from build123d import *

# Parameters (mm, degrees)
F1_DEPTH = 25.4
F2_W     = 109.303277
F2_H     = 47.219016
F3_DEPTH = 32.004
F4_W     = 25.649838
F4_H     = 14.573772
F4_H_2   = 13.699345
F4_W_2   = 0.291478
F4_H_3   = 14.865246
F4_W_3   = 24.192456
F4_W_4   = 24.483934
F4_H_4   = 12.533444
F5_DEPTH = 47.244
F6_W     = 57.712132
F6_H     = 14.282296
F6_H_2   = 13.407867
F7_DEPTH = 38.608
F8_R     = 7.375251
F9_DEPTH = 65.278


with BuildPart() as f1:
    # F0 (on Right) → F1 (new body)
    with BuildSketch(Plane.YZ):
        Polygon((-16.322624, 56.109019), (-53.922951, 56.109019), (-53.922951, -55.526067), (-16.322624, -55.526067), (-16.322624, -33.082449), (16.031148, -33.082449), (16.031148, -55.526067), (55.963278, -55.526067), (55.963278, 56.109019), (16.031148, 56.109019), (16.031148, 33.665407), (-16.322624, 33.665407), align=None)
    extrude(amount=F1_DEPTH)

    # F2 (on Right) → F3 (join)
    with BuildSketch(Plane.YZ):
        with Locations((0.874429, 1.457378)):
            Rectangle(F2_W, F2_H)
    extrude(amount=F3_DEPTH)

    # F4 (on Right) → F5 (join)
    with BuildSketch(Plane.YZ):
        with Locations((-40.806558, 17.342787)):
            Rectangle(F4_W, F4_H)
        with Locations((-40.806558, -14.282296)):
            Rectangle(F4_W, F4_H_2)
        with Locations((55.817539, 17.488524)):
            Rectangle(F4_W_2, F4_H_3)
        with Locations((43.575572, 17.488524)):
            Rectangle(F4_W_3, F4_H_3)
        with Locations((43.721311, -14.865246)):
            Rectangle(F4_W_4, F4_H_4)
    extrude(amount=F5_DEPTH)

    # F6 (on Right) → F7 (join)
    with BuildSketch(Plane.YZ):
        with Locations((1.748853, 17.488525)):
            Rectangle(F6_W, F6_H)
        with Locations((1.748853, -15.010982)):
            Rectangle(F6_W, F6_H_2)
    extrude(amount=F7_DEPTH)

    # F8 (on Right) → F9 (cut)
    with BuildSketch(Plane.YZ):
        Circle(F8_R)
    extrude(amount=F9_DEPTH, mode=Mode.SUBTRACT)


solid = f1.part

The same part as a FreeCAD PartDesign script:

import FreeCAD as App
import Part
import Sketcher

doc = App.newDocument("Part")
params = doc.addObject("Spreadsheet::Sheet", "Params")
for row, (alias, value) in enumerate([
    ("pad1_length", "1 in"),
    ("pad2_length", "1.26 in"),
    ("pad3_length", "1.86 in"),
    ("pad4_length", "1.52 in"),
    ("pocket1_length", "2.57 in"),
], start=1):
    params.set(f"A{row}", alias)
    params.set(f"B{row}", "=" + value)
    params.setAlias(f"B{row}", alias)

body = doc.addObject("PartDesign::Body", "Body")

# Sketch on YZ plane
sketch1 = body.newObject("Sketcher::SketchObject", "Sketch")
sketch1.AttachmentSupport = (doc.getObject("YZ_Plane"), [""])
sketch1.MapMode = "FlatFace"
sketch1.addGeometry([
    Part.LineSegment(App.Vector(-16.322624, 56.109019, 0), App.Vector(-53.922951, 56.109019, 0)),  # 0
    Part.LineSegment(App.Vector(-53.922951, 56.109019, 0), App.Vector(-53.922951, -55.526067, 0)),  # 1
    Part.LineSegment(App.Vector(-53.922951, -55.526067, 0), App.Vector(-16.322624, -55.526067, 0)),  # 2
    Part.LineSegment(App.Vector(-16.322624, -55.526067, 0), App.Vector(-16.322624, -33.082449, 0)),  # 3
    Part.LineSegment(App.Vector(-16.322624, -33.082449, 0), App.Vector(16.031148, -33.082449, 0)),  # 4
    Part.LineSegment(App.Vector(16.031148, -33.082449, 0), App.Vector(16.031148, -55.526067, 0)),  # 5
    Part.LineSegment(App.Vector(16.031148, -55.526067, 0), App.Vector(55.963278, -55.526067, 0)),  # 6
    Part.LineSegment(App.Vector(55.963278, -55.526067, 0), App.Vector(55.963278, 56.109019, 0)),  # 7
    Part.LineSegment(App.Vector(55.963278, 56.109019, 0), App.Vector(16.031148, 56.109019, 0)),  # 8
    Part.LineSegment(App.Vector(16.031148, 56.109019, 0), App.Vector(16.031148, 33.665407, 0)),  # 9
    Part.LineSegment(App.Vector(16.031148, 33.665407, 0), App.Vector(-16.322624, 33.665407, 0)),  # 10
    Part.LineSegment(App.Vector(-16.322624, 33.665407, 0), App.Vector(-16.322624, 56.109019, 0)),  # 11
], False)
sketch1.addConstraint([
    Sketcher.Constraint("Coincident", 0, 2, 1, 1),
    Sketcher.Constraint("Coincident", 1, 2, 2, 1),
    Sketcher.Constraint("Coincident", 2, 2, 3, 1),
    Sketcher.Constraint("Coincident", 3, 2, 4, 1),
    Sketcher.Constraint("Coincident", 4, 2, 5, 1),
    Sketcher.Constraint("Coincident", 5, 2, 6, 1),
    Sketcher.Constraint("Coincident", 6, 2, 7, 1),
    Sketcher.Constraint("Coincident", 7, 2, 8, 1),
    Sketcher.Constraint("Coincident", 8, 2, 9, 1),
    Sketcher.Constraint("Coincident", 9, 2, 10, 1),
    Sketcher.Constraint("Coincident", 10, 2, 11, 1),
    Sketcher.Constraint("Coincident", 11, 2, 0, 1),
    Sketcher.Constraint("Horizontal", 0),
    Sketcher.Constraint("Vertical", 1),
    Sketcher.Constraint("Horizontal", 2),
    Sketcher.Constraint("Vertical", 3),
    Sketcher.Constraint("Horizontal", 4),
    Sketcher.Constraint("Vertical", 5),
    Sketcher.Constraint("Horizontal", 6),
    Sketcher.Constraint("Vertical", 7),
    Sketcher.Constraint("Horizontal", 8),
    Sketcher.Constraint("Vertical", 9),
    Sketcher.Constraint("Horizontal", 10),
    Sketcher.Constraint("Vertical", 11),
    Sketcher.Constraint("Horizontal", 2, 2, 5, 2),
    Sketcher.Constraint("Horizontal", 0, 2, 7, 2),
    Sketcher.Constraint("Vertical", 5, 2, 8, 2),
    Sketcher.Constraint("Vertical", 3, 2, 10, 2),
    Sketcher.Constraint("DistanceX", 6, 1, 6, 2, 39.93213),
    Sketcher.Constraint("DistanceY", 3, 1, 3, 2, 22.443618),
    Sketcher.Constraint("DistanceX", 1, 2, 4, 2, 69.954099),
    Sketcher.Constraint("DistanceX", 0, 2, 0, 1, 37.600327),
    Sketcher.Constraint("DistanceY", 1, 2, 1, 1, 111.635086),
    Sketcher.Constraint("DistanceY", 9, 2, 9, 1, 22.443612),
    Sketcher.Constraint("DistanceX", 0, 2, -1, 1, 53.922951),
    Sketcher.Constraint("DistanceY", -1, 1, 0, 2, 56.109019),
])
pad1 = body.newObject("PartDesign::Pad", "Pad")
pad1.Profile = sketch1
pad1.setExpression("Length", "Params.pad1_length")

# Sketch on YZ plane
sketch2 = body.newObject("Sketcher::SketchObject", "Sketch001")
sketch2.AttachmentSupport = (doc.getObject("YZ_Plane"), [""])
sketch2.MapMode = "FlatFace"
sketch2.addGeometry([
    Part.LineSegment(App.Vector(-53.777209, 25.066886, 0), App.Vector(-53.777209, -22.15213, 0)),
    Part.LineSegment(App.Vector(-53.777209, -22.15213, 0), App.Vector(55.526068, -22.15213, 0)),
    Part.LineSegment(App.Vector(55.526068, -22.15213, 0), App.Vector(55.526068, 25.066886, 0)),
    Part.LineSegment(App.Vector(55.526068, 25.066886, 0), App.Vector(-53.777209, 25.066886, 0)),
], False)
sketch2.addConstraint([
    Sketcher.Constraint("Coincident", 0, 2, 1, 1),
    Sketcher.Constraint("Coincident", 1, 2, 2, 1),
    Sketcher.Constraint("Coincident", 2, 2, 3, 1),
    Sketcher.Constraint("Coincident", 3, 2, 0, 1),
    Sketcher.Constraint("Vertical", 0),
    Sketcher.Constraint("Horizontal", 1),
    Sketcher.Constraint("Vertical", 2),
    Sketcher.Constraint("Horizontal", 3),
    Sketcher.Constraint("DistanceX", 1, 1, 1, 2, 109.303277),
    Sketcher.Constraint("DistanceY", 0, 2, 0, 1, 47.219016),
    Sketcher.Constraint("DistanceX", 0, 2, -1, 1, 53.777209),
    Sketcher.Constraint("DistanceY", 0, 2, -1, 1, 22.15213),
])
pad2 = body.newObject("PartDesign::Pad", "Pad001")
pad2.Profile = sketch2
pad2.setExpression("Length", "Params.pad2_length")

# Sketch on YZ plane
sketch3 = body.newObject("Sketcher::SketchObject", "Sketch002")
sketch3.AttachmentSupport = (doc.getObject("YZ_Plane"), [""])
sketch3.MapMode = "FlatFace"
sketch3.addGeometry([
    Part.LineSegment(App.Vector(-53.631477, 24.629673, 0), App.Vector(-53.631477, 10.055901, 0)),  # 0
    Part.LineSegment(App.Vector(-53.631477, 10.055901, 0), App.Vector(-27.981639, 10.055901, 0)),  # 1
    Part.LineSegment(App.Vector(-27.981639, 10.055901, 0), App.Vector(-27.981639, 24.629673, 0)),  # 2
    Part.LineSegment(App.Vector(-27.981639, 24.629673, 0), App.Vector(-53.631477, 24.629673, 0)),  # 3
    Part.LineSegment(App.Vector(-53.631477, -7.432624, 0), App.Vector(-53.631477, -21.131968, 0)),  # 4
    Part.LineSegment(App.Vector(-53.631477, -21.131968, 0), App.Vector(-27.981639, -21.131968, 0)),  # 5
    Part.LineSegment(App.Vector(-27.981639, -21.131968, 0), App.Vector(-27.981639, -7.432624, 0)),  # 6
    Part.LineSegment(App.Vector(-27.981639, -7.432624, 0), App.Vector(-53.631477, -7.432624, 0)),  # 7
    Part.LineSegment(App.Vector(55.963278, 10.055901, 0), App.Vector(55.963278, 24.921147, 0)),  # 8
    Part.LineSegment(App.Vector(55.963278, 24.921147, 0), App.Vector(31.479344, 24.921147, 0)),  # 9
    Part.LineSegment(App.Vector(31.479344, 24.921147, 0), App.Vector(31.479344, 10.055901, 0)),  # 10
    Part.LineSegment(App.Vector(31.479344, 10.055901, 0), App.Vector(55.963278, 10.055901, 0)),  # 11
    Part.LineSegment(App.Vector(31.479344, -8.598524, 0), App.Vector(31.479344, -21.131968, 0)),  # 12
    Part.LineSegment(App.Vector(31.479344, -21.131968, 0), App.Vector(55.963278, -21.131968, 0)),  # 13
    Part.LineSegment(App.Vector(55.963278, -21.131968, 0), App.Vector(55.963278, -8.598524, 0)),  # 14
    Part.LineSegment(App.Vector(55.963278, -8.598524, 0), App.Vector(31.479344, -8.598524, 0)),  # 15
], False)
sketch3.addConstraint([
    Sketcher.Constraint("Coincident", 0, 2, 1, 1),
    Sketcher.Constraint("Coincident", 1, 2, 2, 1),
    Sketcher.Constraint("Coincident", 2, 2, 3, 1),
    Sketcher.Constraint("Coincident", 3, 2, 0, 1),
    Sketcher.Constraint("Coincident", 4, 2, 5, 1),
    Sketcher.Constraint("Coincident", 5, 2, 6, 1),
    Sketcher.Constraint("Coincident", 6, 2, 7, 1),
    Sketcher.Constraint("Coincident", 7, 2, 4, 1),
    Sketcher.Constraint("Coincident", 8, 2, 9, 1),
    Sketcher.Constraint("Coincident", 9, 2, 10, 1),
    Sketcher.Constraint("Coincident", 10, 2, 11, 1),
    Sketcher.Constraint("Coincident", 11, 2, 8, 1),
    Sketcher.Constraint("Coincident", 12, 2, 13, 1),
    Sketcher.Constraint("Coincident", 13, 2, 14, 1),
    Sketcher.Constraint("Coincident", 14, 2, 15, 1),
    Sketcher.Constraint("Coincident", 15, 2, 12, 1),
    Sketcher.Constraint("Vertical", 0),
    Sketcher.Constraint("Horizontal", 1),
    Sketcher.Constraint("Vertical", 2),
    Sketcher.Constraint("Horizontal", 3),
    Sketcher.Constraint("Vertical", 4),
    Sketcher.Constraint("Horizontal", 5),
    Sketcher.Constraint("Vertical", 6),
    Sketcher.Constraint("Horizontal", 7),
    Sketcher.Constraint("Vertical", 8),
    Sketcher.Constraint("Horizontal", 9),
    Sketcher.Constraint("Vertical", 10),
    Sketcher.Constraint("Horizontal", 11),
    Sketcher.Constraint("Vertical", 12),
    Sketcher.Constraint("Horizontal", 13),
    Sketcher.Constraint("Vertical", 14),
    Sketcher.Constraint("Horizontal", 15),
    Sketcher.Constraint("Horizontal", 1, 2, 10, 2),
    Sketcher.Constraint("Horizontal", 5, 2, 12, 2),
    Sketcher.Constraint("Vertical", 3, 2, 4, 2),
    Sketcher.Constraint("Vertical", 2, 2, 5, 2),
    Sketcher.Constraint("Vertical", 10, 2, 12, 2),
    Sketcher.Constraint("Vertical", 11, 2, 13, 2),
    Sketcher.Constraint("DistanceY", -1, 1, 0, 2, 10.055901),
    Sketcher.Constraint("DistanceX", 1, 1, 1, 2, 25.649838),
    Sketcher.Constraint("DistanceX", 9, 2, 9, 1, 24.483934),
    Sketcher.Constraint("DistanceY", 0, 2, 0, 1, 14.573772),
    Sketcher.Constraint("DistanceY", 4, 2, 4, 1, 13.699345),
    Sketcher.Constraint("DistanceY", 8, 1, 8, 2, 14.865246),
    Sketcher.Constraint("DistanceY", 12, 2, 12, 1, 12.533444),
    Sketcher.Constraint("DistanceX", 1, 2, -1, 1, 27.981639),
    Sketcher.Constraint("DistanceY", 4, 2, -1, 1, 21.131968),
    Sketcher.Constraint("DistanceX", -1, 1, 8, 2, 55.963278),
])
pad3 = body.newObject("PartDesign::Pad", "Pad002")
pad3.Profile = sketch3
pad3.setExpression("Length", "Params.pad3_length")

# Sketch on YZ plane
sketch4 = body.newObject("Sketcher::SketchObject", "Sketch003")
sketch4.AttachmentSupport = (doc.getObject("YZ_Plane"), [""])
sketch4.MapMode = "FlatFace"
sketch4.addGeometry([
    Part.LineSegment(App.Vector(-27.107213, 24.629673, 0), App.Vector(-27.107213, 10.347377, 0)),  # 0
    Part.LineSegment(App.Vector(-27.107213, 10.347377, 0), App.Vector(30.604919, 10.347377, 0)),  # 1
    Part.LineSegment(App.Vector(30.604919, 10.347377, 0), App.Vector(30.604919, 24.629673, 0)),  # 2
    Part.LineSegment(App.Vector(30.604919, 24.629673, 0), App.Vector(-27.107213, 24.629673, 0)),  # 3
    Part.LineSegment(App.Vector(-27.107213, -8.307049, 0), App.Vector(-27.107213, -21.714916, 0)),  # 4
    Part.LineSegment(App.Vector(-27.107213, -21.714916, 0), App.Vector(30.604919, -21.714916, 0)),  # 5
    Part.LineSegment(App.Vector(30.604919, -21.714916, 0), App.Vector(30.604919, -8.307049, 0)),  # 6
    Part.LineSegment(App.Vector(30.604919, -8.307049, 0), App.Vector(-27.107213, -8.307049, 0)),  # 7
], False)
sketch4.addConstraint([
    Sketcher.Constraint("Coincident", 0, 2, 1, 1),
    Sketcher.Constraint("Coincident", 1, 2, 2, 1),
    Sketcher.Constraint("Coincident", 2, 2, 3, 1),
    Sketcher.Constraint("Coincident", 3, 2, 0, 1),
    Sketcher.Constraint("Coincident", 4, 2, 5, 1),
    Sketcher.Constraint("Coincident", 5, 2, 6, 1),
    Sketcher.Constraint("Coincident", 6, 2, 7, 1),
    Sketcher.Constraint("Coincident", 7, 2, 4, 1),
    Sketcher.Constraint("Vertical", 0),
    Sketcher.Constraint("Horizontal", 1),
    Sketcher.Constraint("Vertical", 2),
    Sketcher.Constraint("Horizontal", 3),
    Sketcher.Constraint("Vertical", 4),
    Sketcher.Constraint("Horizontal", 5),
    Sketcher.Constraint("Vertical", 6),
    Sketcher.Constraint("Horizontal", 7),
    Sketcher.Constraint("Vertical", 3, 2, 4, 2),
    Sketcher.Constraint("Vertical", 2, 2, 5, 2),
    Sketcher.Constraint("DistanceX", 1, 1, 1, 2, 57.712132),
    Sketcher.Constraint("DistanceY", 0, 2, 0, 1, 14.282296),
    Sketcher.Constraint("DistanceY", 4, 2, 4, 1, 13.407867),
    Sketcher.Constraint("DistanceX", -1, 1, 1, 2, 30.604919),
    Sketcher.Constraint("DistanceY", 6, 2, -1, 1, 8.307049),
    Sketcher.Constraint("DistanceY", 4, 2, 3, 2, 46.344589),
])
pad4 = body.newObject("PartDesign::Pad", "Pad003")
pad4.Profile = sketch4
pad4.setExpression("Length", "Params.pad4_length")

# Sketch on YZ plane
sketch5 = body.newObject("Sketcher::SketchObject", "Sketch004")
sketch5.AttachmentSupport = (doc.getObject("YZ_Plane"), [""])
sketch5.MapMode = "FlatFace"
sketch5.addGeometry(Part.Circle(App.Vector(0, 0, 0), App.Vector(0, 0, 1), 7.375251), False)
sketch5.addConstraint([
    Sketcher.Constraint("Coincident", 0, 3, -1, 1),
    Sketcher.Constraint("Diameter", 0, 14.750502),
])
pocket1 = body.newObject("PartDesign::Pocket", "Pocket")
pocket1.Profile = sketch5
pocket1.setExpression("Length", "Params.pocket1_length")
pocket1.Reversed = True

doc.recompute()
